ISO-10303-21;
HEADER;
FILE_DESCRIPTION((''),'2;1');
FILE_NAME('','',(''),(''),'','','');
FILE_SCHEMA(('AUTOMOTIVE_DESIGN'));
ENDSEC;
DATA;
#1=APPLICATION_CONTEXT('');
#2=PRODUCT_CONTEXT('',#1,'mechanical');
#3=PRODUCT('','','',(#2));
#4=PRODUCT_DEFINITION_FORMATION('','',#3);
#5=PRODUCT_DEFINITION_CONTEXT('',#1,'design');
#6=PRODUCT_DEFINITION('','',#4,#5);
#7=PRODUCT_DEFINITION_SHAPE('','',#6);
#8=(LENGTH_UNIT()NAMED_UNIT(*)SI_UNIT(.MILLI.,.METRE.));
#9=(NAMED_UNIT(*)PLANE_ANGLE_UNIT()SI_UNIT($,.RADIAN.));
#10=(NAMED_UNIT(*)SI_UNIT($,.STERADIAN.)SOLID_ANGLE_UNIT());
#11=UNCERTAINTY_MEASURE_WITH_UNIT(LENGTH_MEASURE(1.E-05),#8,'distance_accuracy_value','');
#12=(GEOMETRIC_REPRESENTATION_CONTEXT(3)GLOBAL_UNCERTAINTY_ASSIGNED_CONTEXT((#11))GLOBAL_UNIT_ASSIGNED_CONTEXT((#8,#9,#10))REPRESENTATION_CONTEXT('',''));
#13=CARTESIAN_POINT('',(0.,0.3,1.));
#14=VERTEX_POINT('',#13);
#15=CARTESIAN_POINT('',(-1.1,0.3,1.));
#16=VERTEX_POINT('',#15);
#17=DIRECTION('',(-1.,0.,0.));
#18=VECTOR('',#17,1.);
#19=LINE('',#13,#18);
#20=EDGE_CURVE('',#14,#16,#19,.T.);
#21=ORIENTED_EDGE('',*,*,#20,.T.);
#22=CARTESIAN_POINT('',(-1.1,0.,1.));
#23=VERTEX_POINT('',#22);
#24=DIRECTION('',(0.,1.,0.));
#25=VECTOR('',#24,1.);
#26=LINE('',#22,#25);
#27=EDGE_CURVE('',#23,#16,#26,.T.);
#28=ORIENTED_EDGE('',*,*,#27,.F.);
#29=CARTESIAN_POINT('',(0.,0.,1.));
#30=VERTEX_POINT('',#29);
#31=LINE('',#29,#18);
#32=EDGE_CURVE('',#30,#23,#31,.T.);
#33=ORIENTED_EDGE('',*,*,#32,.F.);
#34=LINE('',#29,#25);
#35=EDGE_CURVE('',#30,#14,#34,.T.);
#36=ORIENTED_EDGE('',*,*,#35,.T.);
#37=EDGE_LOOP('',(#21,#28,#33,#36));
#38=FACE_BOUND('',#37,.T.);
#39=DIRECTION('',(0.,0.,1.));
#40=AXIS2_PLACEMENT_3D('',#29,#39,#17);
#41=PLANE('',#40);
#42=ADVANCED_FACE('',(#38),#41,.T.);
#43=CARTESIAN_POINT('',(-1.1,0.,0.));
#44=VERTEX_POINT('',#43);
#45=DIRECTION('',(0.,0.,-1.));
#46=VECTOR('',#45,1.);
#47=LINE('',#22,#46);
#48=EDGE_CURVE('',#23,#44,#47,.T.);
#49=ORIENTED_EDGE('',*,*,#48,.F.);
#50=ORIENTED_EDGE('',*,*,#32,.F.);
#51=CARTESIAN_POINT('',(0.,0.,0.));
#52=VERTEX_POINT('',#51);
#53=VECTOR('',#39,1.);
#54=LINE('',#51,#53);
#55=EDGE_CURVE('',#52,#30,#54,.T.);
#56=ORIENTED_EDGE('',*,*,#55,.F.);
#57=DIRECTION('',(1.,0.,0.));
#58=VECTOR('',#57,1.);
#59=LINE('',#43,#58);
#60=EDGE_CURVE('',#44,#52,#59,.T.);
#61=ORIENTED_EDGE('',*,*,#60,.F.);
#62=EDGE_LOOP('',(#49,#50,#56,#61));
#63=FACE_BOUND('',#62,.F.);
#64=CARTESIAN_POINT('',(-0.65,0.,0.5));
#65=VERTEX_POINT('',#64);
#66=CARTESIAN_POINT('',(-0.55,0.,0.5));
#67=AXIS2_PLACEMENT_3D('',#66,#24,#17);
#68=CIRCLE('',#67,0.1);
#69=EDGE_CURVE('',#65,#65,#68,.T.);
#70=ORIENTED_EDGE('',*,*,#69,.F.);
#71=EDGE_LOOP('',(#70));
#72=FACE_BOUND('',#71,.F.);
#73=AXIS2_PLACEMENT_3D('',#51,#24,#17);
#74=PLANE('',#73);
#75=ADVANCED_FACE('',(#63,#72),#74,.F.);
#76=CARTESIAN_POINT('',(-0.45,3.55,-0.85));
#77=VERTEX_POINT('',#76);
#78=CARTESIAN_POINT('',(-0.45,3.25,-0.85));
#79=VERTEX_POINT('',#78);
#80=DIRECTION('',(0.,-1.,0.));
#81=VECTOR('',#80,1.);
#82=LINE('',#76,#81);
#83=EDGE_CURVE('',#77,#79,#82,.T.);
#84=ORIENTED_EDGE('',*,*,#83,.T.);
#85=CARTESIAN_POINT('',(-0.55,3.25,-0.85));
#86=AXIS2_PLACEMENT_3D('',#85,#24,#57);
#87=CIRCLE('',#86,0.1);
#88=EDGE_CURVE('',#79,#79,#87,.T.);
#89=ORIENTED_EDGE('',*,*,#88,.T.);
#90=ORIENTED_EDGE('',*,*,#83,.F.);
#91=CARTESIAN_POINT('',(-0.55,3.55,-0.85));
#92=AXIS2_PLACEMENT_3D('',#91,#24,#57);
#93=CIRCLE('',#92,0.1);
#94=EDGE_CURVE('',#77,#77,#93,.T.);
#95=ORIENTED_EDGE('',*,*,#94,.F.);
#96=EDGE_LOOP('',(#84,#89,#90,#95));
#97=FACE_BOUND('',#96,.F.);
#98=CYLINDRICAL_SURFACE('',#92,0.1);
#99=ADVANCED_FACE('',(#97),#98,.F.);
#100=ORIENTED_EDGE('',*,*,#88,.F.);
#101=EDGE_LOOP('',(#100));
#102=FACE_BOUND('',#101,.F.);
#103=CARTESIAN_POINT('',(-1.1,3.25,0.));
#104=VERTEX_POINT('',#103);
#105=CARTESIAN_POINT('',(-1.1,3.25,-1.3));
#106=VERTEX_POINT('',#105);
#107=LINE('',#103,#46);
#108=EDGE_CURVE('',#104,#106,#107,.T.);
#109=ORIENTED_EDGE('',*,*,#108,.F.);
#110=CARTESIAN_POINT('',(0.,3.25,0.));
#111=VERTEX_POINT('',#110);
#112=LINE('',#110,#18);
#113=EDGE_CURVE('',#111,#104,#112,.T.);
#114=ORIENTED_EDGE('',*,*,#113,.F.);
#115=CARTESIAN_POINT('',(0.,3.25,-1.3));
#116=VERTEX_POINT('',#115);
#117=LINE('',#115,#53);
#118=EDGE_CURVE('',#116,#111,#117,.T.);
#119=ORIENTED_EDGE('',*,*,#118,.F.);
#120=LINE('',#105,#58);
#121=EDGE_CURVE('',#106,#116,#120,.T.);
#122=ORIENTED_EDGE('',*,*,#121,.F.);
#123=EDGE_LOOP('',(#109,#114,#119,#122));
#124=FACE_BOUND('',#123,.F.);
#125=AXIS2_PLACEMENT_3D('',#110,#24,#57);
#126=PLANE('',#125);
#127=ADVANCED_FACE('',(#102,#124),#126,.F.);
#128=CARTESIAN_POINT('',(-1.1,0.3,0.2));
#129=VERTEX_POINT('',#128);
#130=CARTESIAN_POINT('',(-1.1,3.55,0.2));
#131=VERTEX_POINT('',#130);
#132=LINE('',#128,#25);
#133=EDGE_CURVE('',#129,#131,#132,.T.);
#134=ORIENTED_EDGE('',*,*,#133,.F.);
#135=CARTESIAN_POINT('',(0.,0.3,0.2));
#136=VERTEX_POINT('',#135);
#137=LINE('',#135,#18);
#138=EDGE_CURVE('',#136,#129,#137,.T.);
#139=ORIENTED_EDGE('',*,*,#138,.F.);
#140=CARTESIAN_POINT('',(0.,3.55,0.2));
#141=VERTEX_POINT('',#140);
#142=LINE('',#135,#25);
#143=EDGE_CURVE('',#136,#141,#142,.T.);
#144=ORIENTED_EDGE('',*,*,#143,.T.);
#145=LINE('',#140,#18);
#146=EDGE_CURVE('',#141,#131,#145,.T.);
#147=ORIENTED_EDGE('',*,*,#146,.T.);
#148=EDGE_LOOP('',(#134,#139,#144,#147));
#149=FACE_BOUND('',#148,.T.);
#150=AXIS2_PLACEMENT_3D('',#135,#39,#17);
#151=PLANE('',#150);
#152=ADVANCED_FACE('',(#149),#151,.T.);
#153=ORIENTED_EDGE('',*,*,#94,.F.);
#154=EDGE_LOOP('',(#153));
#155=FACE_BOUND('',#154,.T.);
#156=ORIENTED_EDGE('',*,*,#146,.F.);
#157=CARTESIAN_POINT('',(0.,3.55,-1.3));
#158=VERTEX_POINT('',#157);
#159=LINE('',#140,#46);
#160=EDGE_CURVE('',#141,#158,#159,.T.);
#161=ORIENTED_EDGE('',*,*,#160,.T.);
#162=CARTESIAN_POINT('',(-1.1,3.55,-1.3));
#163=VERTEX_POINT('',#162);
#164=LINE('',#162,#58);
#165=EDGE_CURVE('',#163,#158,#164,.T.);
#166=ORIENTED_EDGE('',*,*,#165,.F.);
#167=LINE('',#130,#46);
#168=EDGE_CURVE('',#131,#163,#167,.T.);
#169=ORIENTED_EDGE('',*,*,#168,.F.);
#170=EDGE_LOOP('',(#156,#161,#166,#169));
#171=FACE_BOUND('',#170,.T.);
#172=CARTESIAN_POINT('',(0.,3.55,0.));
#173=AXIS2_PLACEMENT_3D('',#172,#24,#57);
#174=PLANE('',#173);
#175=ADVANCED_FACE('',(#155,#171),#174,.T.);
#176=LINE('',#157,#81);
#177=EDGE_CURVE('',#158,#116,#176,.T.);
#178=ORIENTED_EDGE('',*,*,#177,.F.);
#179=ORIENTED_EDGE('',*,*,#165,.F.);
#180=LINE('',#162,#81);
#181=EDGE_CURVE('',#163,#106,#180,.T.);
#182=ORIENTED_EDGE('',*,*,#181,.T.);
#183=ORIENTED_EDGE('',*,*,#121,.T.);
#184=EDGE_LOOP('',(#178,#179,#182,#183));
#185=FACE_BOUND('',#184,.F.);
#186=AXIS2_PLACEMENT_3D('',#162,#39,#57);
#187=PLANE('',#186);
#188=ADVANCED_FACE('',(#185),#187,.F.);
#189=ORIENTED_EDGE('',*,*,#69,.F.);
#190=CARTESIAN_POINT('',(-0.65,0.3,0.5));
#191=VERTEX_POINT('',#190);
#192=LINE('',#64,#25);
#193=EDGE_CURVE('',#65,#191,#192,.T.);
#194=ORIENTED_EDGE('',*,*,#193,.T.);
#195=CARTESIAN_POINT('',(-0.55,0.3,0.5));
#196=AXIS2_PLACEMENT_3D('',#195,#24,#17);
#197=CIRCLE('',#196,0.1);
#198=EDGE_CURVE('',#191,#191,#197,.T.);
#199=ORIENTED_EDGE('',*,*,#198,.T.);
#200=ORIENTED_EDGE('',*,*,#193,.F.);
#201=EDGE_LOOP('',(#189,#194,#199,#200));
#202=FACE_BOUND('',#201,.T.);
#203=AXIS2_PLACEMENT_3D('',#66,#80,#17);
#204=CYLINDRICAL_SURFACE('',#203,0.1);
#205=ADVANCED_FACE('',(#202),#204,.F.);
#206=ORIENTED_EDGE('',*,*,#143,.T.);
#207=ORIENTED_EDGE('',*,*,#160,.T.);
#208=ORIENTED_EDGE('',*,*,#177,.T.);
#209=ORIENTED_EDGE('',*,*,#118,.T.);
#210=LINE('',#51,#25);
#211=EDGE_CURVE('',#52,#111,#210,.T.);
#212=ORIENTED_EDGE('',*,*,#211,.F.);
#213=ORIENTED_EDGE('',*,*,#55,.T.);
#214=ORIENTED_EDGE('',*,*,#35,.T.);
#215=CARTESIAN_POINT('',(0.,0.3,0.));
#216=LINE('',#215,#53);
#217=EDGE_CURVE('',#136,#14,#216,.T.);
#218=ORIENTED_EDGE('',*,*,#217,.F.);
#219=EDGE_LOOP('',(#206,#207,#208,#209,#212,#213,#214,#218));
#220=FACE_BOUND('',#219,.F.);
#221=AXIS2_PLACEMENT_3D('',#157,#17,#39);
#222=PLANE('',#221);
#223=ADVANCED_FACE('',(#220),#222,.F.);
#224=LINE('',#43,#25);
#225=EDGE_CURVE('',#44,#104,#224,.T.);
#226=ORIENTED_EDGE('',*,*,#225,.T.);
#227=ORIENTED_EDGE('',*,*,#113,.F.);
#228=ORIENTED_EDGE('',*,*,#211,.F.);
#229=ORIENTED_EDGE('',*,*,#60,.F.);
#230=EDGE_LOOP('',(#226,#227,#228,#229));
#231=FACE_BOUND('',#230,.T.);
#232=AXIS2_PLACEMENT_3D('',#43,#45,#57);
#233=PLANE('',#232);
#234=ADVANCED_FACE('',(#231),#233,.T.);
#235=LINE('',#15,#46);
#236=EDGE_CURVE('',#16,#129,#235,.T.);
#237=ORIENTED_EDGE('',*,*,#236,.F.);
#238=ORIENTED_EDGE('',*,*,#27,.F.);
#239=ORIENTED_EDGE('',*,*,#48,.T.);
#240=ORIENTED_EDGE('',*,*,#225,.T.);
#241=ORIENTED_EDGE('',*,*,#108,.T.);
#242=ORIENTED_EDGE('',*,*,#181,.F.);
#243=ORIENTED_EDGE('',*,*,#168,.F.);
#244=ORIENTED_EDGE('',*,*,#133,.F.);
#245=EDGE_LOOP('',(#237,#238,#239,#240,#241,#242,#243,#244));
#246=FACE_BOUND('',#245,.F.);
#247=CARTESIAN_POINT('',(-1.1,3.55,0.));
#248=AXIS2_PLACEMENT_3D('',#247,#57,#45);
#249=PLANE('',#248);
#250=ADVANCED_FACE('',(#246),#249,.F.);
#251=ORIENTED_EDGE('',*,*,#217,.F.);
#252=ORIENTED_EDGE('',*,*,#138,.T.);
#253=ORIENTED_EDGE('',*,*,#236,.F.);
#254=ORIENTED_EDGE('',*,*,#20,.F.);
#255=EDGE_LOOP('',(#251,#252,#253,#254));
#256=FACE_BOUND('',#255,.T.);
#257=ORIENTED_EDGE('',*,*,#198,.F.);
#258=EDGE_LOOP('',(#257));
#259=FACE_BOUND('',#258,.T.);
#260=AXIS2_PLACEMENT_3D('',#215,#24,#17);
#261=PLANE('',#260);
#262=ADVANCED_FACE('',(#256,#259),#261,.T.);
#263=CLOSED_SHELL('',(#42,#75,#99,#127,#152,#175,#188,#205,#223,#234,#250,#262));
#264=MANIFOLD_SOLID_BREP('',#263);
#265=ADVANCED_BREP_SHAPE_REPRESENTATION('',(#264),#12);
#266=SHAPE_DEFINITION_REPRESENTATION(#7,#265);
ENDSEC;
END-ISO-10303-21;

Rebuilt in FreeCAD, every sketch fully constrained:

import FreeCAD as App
import Part
import Sketcher
Q = App.Units.Quantity


def add_polygon(sketch, points):
    """Adds a closed chain of lines whose ends are joined by coincident constraints."""
    first, n = sketch.GeometryCount, len(points)
    for a, b in zip(points, points[1:] + points[:1]):
        sketch.addGeometry(Part.LineSegment(App.Vector(*a, 0), App.Vector(*b, 0)), False)
    for i in range(n):
        sketch.addConstraint(Sketcher.Constraint("Coincident", first + i, 2, first + (i + 1) % n, 1))

doc = App.newDocument("Part")
params = doc.addObject("Spreadsheet::Sheet", "Params")
for row, (alias, value) in enumerate([
    ("sketch1_diameter", "0.2 mm"),
    ("sketch1_height", "1 mm"),
    ("sketch1_width", "1.1 mm"),
    ("pad1_length", "0.3 mm"),
    ("sketch2_height", "0.2 mm"),
    ("sketch2_width", "1.1 mm"),
    ("pad2_length", "3.25 mm"),
    ("sketch3_diameter", "0.2 mm"),
    ("sketch3_height", "1.3 mm"),
    ("sketch3_width", "1.1 mm"),
    ("pad3_length", "0.3 mm"),
], start=1):
    params.set(f"A{row}", alias)
    params.set(f"B{row}", "=" + value)
    params.setAlias(f"B{row}", alias)

body = doc.addObject("PartDesign::Body", "Body")

sketch1 = doc.addObject("Sketcher::SketchObject", "Sketch")
body.addObject(sketch1)
sketch1.AttachmentSupport = (doc.XZ_Plane, [""])
sketch1.MapMode = "FlatFace"
add_polygon(sketch1, [(0, 1), (0, 0), (-1.1, 0), (-1.1, 1)])
sketch1.addGeometry(Part.Circle(App.Vector(-0.55, 0.5, 0), App.Vector(0, 0, 1), 0.1), False)
sketch1.addConstraint([
    Sketcher.Constraint("Vertical", 0),
    Sketcher.Constraint("Horizontal", 1),
    Sketcher.Constraint("Vertical", 2),
    Sketcher.Constraint("Horizontal", 3),
    Sketcher.Constraint("Coincident", 0, 2, -1, 1),
    Sketcher.Constraint("Diameter", 4, Q("0.2 mm")),
    Sketcher.Constraint("DistanceY", 0, 2, 0, 1, Q("1 mm")),
    Sketcher.Constraint("DistanceX", 1, 2, 1, 1, Q("1.1 mm")),
    Sketcher.Constraint("DistanceY", -1, 1, 4, 3, Q("0.5 mm")),
    Sketcher.Constraint("DistanceX", 4, 3, -1, 1, Q("0.55 mm")),
])
sketch1.setExpression("Constraints[9]", "Params.sketch1_diameter")
sketch1.setExpression("Constraints[10]", "Params.sketch1_height")
sketch1.setExpression("Constraints[11]", "Params.sketch1_width")
pad1 = doc.addObject("PartDesign::Pad", "Pad")
body.addObject(pad1)
pad1.Profile = sketch1
pad1.setExpression("Length", "Params.pad1_length")
pad1.Reversed = True

sketch2 = doc.addObject("Sketcher::SketchObject", "Sketch001")
body.addObject(sketch2)
sketch2.AttachmentSupport = (doc.XZ_Plane, [""])
sketch2.MapMode = "FlatFace"
sketch2.AttachmentOffset = App.Placement(App.Vector(0, 0, -0.3), App.Rotation())
add_polygon(sketch2, [(-1.1, 0.2), (0, 0.2), (0, 0), (-1.1, 0)])
sketch2.addConstraint([
    Sketcher.Constraint("Horizontal", 0),
    Sketcher.Constraint("Vertical", 1),
    Sketcher.Constraint("Horizontal", 2),
    Sketcher.Constraint("Vertical", 3),
    Sketcher.Constraint("Coincident", 1, 2, -1, 1),
    Sketcher.Constraint("DistanceY", 1, 2, 1, 1, Q("0.2 mm")),
    Sketcher.Constraint("DistanceX", 0, 1, 0, 2, Q("1.1 mm")),
])
sketch2.setExpression("Constraints[9]", "Params.sketch2_height")
sketch2.setExpression("Constraints[10]", "Params.sketch2_width")
pad2 = doc.addObject("PartDesign::Pad", "Pad001")
body.addObject(pad2)
pad2.Profile = sketch2
pad2.setExpression("Length", "Params.pad2_length")
pad2.Reversed = True

sketch3 = doc.addObject("Sketcher::SketchObject", "Sketch002")
body.addObject(sketch3)
sketch3.AttachmentSupport = (doc.XZ_Plane, [""])
sketch3.MapMode = "FlatFace"
sketch3.AttachmentOffset = App.Placement(App.Vector(0, 0, -3.55), App.Rotation())
add_polygon(sketch3, [(-1.1, 0), (0, 0), (0, -1.3), (-1.1, -1.3)])
sketch3.addGeometry(Part.Circle(App.Vector(-0.55, -0.85, 0), App.Vector(0, 0, 1), 0.1), False)
sketch3.addConstraint([
    Sketcher.Constraint("Horizontal", 0),
    Sketcher.Constraint("Vertical", 1),
    Sketcher.Constraint("Horizontal", 2),
    Sketcher.Constraint("Vertical", 3),
    Sketcher.Constraint("Coincident", 0, 2, -1, 1),
    Sketcher.Constraint("Diameter", 4, Q("0.2 mm")),
    Sketcher.Constraint("DistanceY", 1, 2, 1, 1, Q("1.3 mm")),
    Sketcher.Constraint("DistanceX", 0, 1, 0, 2, Q("1.1 mm")),
    Sketcher.Constraint("DistanceX", 4, 3, -1, 1, Q("0.55 mm")),
    Sketcher.Constraint("DistanceY", 4, 3, -1, 1, Q("0.85 mm")),
])
sketch3.setExpression("Constraints[9]", "Params.sketch3_diameter")
sketch3.setExpression("Constraints[10]", "Params.sketch3_height")
sketch3.setExpression("Constraints[11]", "Params.sketch3_width")
pad3 = doc.addObject("PartDesign::Pad", "Pad002")
body.addObject(pad3)
pad3.Profile = sketch3
pad3.setExpression("Length", "Params.pad3_length")

doc.recompute()
